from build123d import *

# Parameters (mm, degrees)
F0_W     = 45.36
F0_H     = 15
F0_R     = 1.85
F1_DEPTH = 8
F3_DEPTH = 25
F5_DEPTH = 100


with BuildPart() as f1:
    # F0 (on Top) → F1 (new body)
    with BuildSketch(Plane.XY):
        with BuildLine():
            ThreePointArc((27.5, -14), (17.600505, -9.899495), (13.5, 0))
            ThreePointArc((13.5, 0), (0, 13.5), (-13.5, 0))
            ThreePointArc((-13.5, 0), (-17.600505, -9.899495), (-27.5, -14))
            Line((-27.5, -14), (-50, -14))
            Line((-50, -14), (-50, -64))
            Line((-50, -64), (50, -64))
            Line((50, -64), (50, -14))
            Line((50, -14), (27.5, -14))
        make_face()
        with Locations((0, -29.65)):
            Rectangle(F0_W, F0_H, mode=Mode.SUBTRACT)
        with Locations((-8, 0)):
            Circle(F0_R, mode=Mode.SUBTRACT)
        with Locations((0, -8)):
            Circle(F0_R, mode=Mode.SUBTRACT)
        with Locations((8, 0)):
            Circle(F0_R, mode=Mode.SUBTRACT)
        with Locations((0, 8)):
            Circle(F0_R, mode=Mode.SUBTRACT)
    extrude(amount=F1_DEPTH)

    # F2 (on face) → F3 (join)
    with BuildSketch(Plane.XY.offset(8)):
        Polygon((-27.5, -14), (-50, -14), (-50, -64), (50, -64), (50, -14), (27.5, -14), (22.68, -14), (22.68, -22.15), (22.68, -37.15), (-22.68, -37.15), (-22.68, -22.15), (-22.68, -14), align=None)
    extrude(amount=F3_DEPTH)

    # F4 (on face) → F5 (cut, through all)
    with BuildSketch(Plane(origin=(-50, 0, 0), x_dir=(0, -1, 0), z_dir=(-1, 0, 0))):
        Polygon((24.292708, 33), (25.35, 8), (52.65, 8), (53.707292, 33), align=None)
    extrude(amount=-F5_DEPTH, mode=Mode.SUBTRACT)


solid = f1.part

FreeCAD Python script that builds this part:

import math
import FreeCAD as App
import Part
import Sketcher
from FreeCAD import Vector

doc = App.newDocument("Part")
params = doc.addObject("Spreadsheet::Sheet", "Params")
for row, (alias, value) in enumerate([
    ("sketch1_radius", "14 mm"),
    ("sketch1_diameter", "3.7 mm"),
    ("sketch1_radius2", "13.5 mm"),
    ("sketch1_width", "100 mm"),
    ("sketch1_height", "50 mm"),
    ("pad1_length", "8 mm"),
    ("sketch2_width", "100 mm"),
    ("sketch2_height", "50 mm"),
    ("sketch2_width2", "27.32 mm"),
    ("sketch2_height2", "23.15 mm"),
    ("pad2_length", "25 mm"),
    ("sketch3_width", "27.3 mm"),
], start=1):
    params.set(f"A{row}", alias)
    params.set(f"B{row}", "=" + value)
    params.setAlias(f"B{row}", alias)

body = doc.addObject("PartDesign::Body", "Body")

sketch1 = body.newObject("Sketcher::SketchObject", "Sketch")
sketch1.AttachmentSupport = (doc.getObject("XY_Plane"), [""])
sketch1.MapMode = "FlatFace"
sketch1.addGeometry(Part.ArcOfCircle(Part.Circle(Vector(27.5, 0, 0), Vector(0, 0, 1), 14), math.radians(180), math.radians(270)), False)
sketch1.addGeometry(Part.ArcOfCircle(Part.Circle(Vector(0, 0, 0), Vector(0, 0, 1), 13.5), math.radians(0), math.radians(180)), False)
sketch1.addGeometry(Part.ArcOfCircle(Part.Circle(Vector(-27.5, 0, 0), Vector(0, 0, 1), 14), math.radians(-90), math.radians(0)), False)
sketch1.addGeometry(Part.LineSegment(Vector(-27.5, -14, 0), Vector(-50, -14, 0)), False)
sketch1.addGeometry(Part.LineSegment(Vector(-50, -14, 0), Vector(-50, -64, 0)), False)
sketch1.addGeometry(Part.LineSegment(Vector(-50, -64, 0), Vector(50, -64, 0)), False)
sketch1.addGeometry(Part.LineSegment(Vector(50, -64, 0), Vector(50, -14, 0)), False)
sketch1.addGeometry(Part.LineSegment(Vector(50, -14, 0), Vector(27.5, -14, 0)), False)
sketch1.addGeometry(Part.LineSegment(Vector(22.7, -37.1, 0), Vector(-22.7, -37.1, 0)), False)
sketch1.addGeometry(Part.LineSegment(Vector(-22.7, -37.1, 0), Vector(-22.7, -22.1, 0)), False)
sketch1.addGeometry(Part.LineSegment(Vector(-22.7, -22.1, 0), Vector(22.7, -22.1, 0)), False)
sketch1.addGeometry(Part.LineSegment(Vector(22.7, -22.1, 0), Vector(22.7, -37.1, 0)), False)
sketch1.addGeometry(Part.Circle(Vector(0, -8, 0), Vector(0, 0, 1), 1.9), False)
sketch1.addGeometry(Part.Circle(Vector(-8, 0, 0), Vector(0, 0, 1), 1.9), False)
sketch1.addGeometry(Part.Circle(Vector(0, 8, 0), Vector(0, 0, 1), 1.9), False)
sketch1.addGeometry(Part.Circle(Vector(8, 0, 0), Vector(0, 0, 1), 1.9), False)
sketch1.addConstraint(Sketcher.Constraint("Tangent", 0, 1, 1, 1))
sketch1.addConstraint(Sketcher.Constraint("Tangent", 1, 2, 2, 2))
sketch1.addConstraint(Sketcher.Constraint("Tangent", 2, 1, 3, 1))
sketch1.addConstraint(Sketcher.Constraint("Coincident", 3, 2, 4, 1))
sketch1.addConstraint(Sketcher.Constraint("Coincident", 4, 2, 5, 1))
sketch1.addConstraint(Sketcher.Constraint("Coincident", 5, 2, 6, 1))
sketch1.addConstraint(Sketcher.Constraint("Coincident", 6, 2, 7, 1))
sketch1.addConstraint(Sketcher.Constraint("Tangent", 7, 2, 0, 2))
sketch1.addConstraint(Sketcher.Constraint("Coincident", 8, 2, 9, 1))
sketch1.addConstraint(Sketcher.Constraint("Coincident", 9, 2, 10, 1))
sketch1.addConstraint(Sketcher.Constraint("Coincident", 10, 2, 11, 1))
sketch1.addConstraint(Sketcher.Constraint("Coincident", 11, 2, 8, 1))
sketch1.addConstraint(Sketcher.Constraint("Horizontal", 3))
sketch1.addConstraint(Sketcher.Constraint("Vertical", 4))
sketch1.addConstraint(Sketcher.Constraint("Horizontal", 5))
sketch1.addConstraint(Sketcher.Constraint("Vertical", 6))
sketch1.addConstraint(Sketcher.Constraint("Horizontal", 7))
sketch1.addConstraint(Sketcher.Constraint("Horizontal", 8))
sketch1.addConstraint(Sketcher.Constraint("Vertical", 9))
sketch1.addConstraint(Sketcher.Constraint("Horizontal", 10))
sketch1.addConstraint(Sketcher.Constraint("Vertical", 11))
sketch1.addConstraint(Sketcher.Constraint("Coincident", 1, 3, -1, 1))
sketch1.addConstraint(Sketcher.Constraint("Equal", 0, 2))
sketch1.addConstraint(Sketcher.Constraint("Equal", 12, 13))
sketch1.addConstraint(Sketcher.Constraint("Equal", 13, 14))
sketch1.addConstraint(Sketcher.Constraint("Equal", 14, 15))
sketch1.addConstraint(Sketcher.Constraint("Symmetric", 12, 3, 14, 3, -1, 1))
sketch1.addConstraint(Sketcher.Constraint("Symmetric", 13, 3, 15, 3, -1, 1))
sketch1.addConstraint(Sketcher.Constraint("Symmetric", 3, 2, 6, 2, -2))
sketch1.addConstraint(Sketcher.Constraint("PointOnObject", 0, 3, -1))
sketch1.addConstraint(Sketcher.Constraint("PointOnObject", 12, 3, -2))
sketch1.addConstraint(Sketcher.Constraint("PointOnObject", 13, 3, -1))
sketch1.addConstraint(Sketcher.Constraint("Radius", 0, 14.0))
sketch1.addConstraint(Sketcher.Constraint("Diameter", 12, 3.7))
sketch1.addConstraint(Sketcher.Constraint("Radius", 1, 13.5))
sketch1.addConstraint(Sketcher.Constraint("DistanceX", 5, 1, 5, 2, 100.0))
sketch1.addConstraint(Sketcher.Constraint("DistanceY", 4, 2, 4, 1, 50.0))
sketch1.addConstraint(Sketcher.Constraint("DistanceY", 9, 1, 9, 2, 15.0))
sketch1.addConstraint(Sketcher.Constraint("DistanceY", 12, 3, -1, 1, 8.0))
sketch1.addConstraint(Sketcher.Constraint("DistanceX", 13, 3, -1, 1, 8.0))
sketch1.addConstraint(Sketcher.Constraint("DistanceX", 8, 2, 8, 1, 45.36))
sketch1.addConstraint(Sketcher.Constraint("DistanceX", 8, 2, -1, 1, 22.68))
sketch1.addConstraint(Sketcher.Constraint("DistanceY", 8, 2, -1, 1, 37.15))
sketch1.setExpression("Constraints[32]", "Params.sketch1_radius")
sketch1.setExpression("Constraints[33]", "Params.sketch1_diameter")
sketch1.setExpression("Constraints[34]", "Params.sketch1_radius2")
sketch1.setExpression("Constraints[35]", "Params.sketch1_width")
sketch1.setExpression("Constraints[36]", "Params.sketch1_height")
pad1 = body.newObject("PartDesign::Pad", "Pad")
pad1.Profile = sketch1
pad1.setExpression("Length", "Params.pad1_length")

sketch2 = body.newObject("Sketcher::SketchObject", "Sketch001")
sketch2.AttachmentSupport = (doc.getObject("XY_Plane"), [""])
sketch2.MapMode = "FlatFace"
sketch2.AttachmentOffset = App.Placement(Vector(0, 0, 8), App.Rotation())
sketch2.addGeometry(Part.LineSegment(Vector(-50, -14, 0), Vector(-50, -64, 0)), False)
sketch2.addGeometry(Part.LineSegment(Vector(-50, -64, 0), Vector(50, -64, 0)), False)
sketch2.addGeometry(Part.LineSegment(Vector(50, -64, 0), Vector(50, -14, 0)), False)
sketch2.addGeometry(Part.LineSegment(Vector(50, -14, 0), Vector(23, -14, 0)), False)
sketch2.addGeometry(Part.LineSegment(Vector(23, -14, 0), Vector(23, -37, 0)), False)
sketch2.addGeometry(Part.LineSegment(Vector(23, -37, 0), Vector(-23, -37, 0)), False)
sketch2.addGeometry(Part.LineSegment(Vector(-23, -37, 0), Vector(-23, -14, 0)), False)
sketch2.addGeometry(Part.LineSegment(Vector(-23, -14, 0), Vector(-50, -14, 0)), False)
sketch2.addConstraint(Sketcher.Constraint("Coincident", 0, 2, 1, 1))
sketch2.addConstraint(Sketcher.Constraint("Coincident", 1, 2, 2, 1))
sketch2.addConstraint(Sketcher.Constraint("Coincident", 2, 2, 3, 1))
sketch2.addConstraint(Sketcher.Constraint("Coincident", 3, 2, 4, 1))
sketch2.addConstraint(Sketcher.Constraint("Coincident", 4, 2, 5, 1))
sketch2.addConstraint(Sketcher.Constraint("Coincident", 5, 2, 6, 1))
sketch2.addConstraint(Sketcher.Constraint("Coincident", 6, 2, 7, 1))
sketch2.addConstraint(Sketcher.Constraint("Coincident", 7, 2, 0, 1))
sketch2.addConstraint(Sketcher.Constraint("Vertical", 0))
sketch2.addConstraint(Sketcher.Constraint("Horizontal", 1))
sketch2.addConstraint(Sketcher.Constraint("Vertical", 2))
sketch2.addConstraint(Sketcher.Constraint("Horizontal", 3))
sketch2.addConstraint(Sketcher.Constraint("Vertical", 4))
sketch2.addConstraint(Sketcher.Constraint("Horizontal", 5))
sketch2.addConstraint(Sketcher.Constraint("Vertical", 6))
sketch2.addConstraint(Sketcher.Constraint("Horizontal", 7))
sketch2.addConstraint(Sketcher.Constraint("Symmetric", 3, 2, 6, 2, -2))
sketch2.addConstraint(Sketcher.Constraint("Equal", 3, 7))
sketch2.addConstraint(Sketcher.Constraint("DistanceX", 1, 1, 1, 2, 100.0))
sketch2.addConstraint(Sketcher.Constraint("DistanceY", 0, 2, 0, 1, 50.0))
sketch2.addConstraint(Sketcher.Constraint("DistanceY", 0, 2, -1, 1, 64.0))
sketch2.addConstraint(Sketcher.Constraint("DistanceX", 3, 2, 3, 1, 27.32))
sketch2.addConstraint(Sketcher.Constraint("DistanceY", 4, 2, 4, 1, 23.15))
sketch2.setExpression("Constraints[18]", "Params.sketch2_width")
sketch2.setExpression("Constraints[19]", "Params.sketch2_height")
sketch2.setExpression("Constraints[21]", "Params.sketch2_width2")
sketch2.setExpression("Constraints[22]", "Params.sketch2_height2")
pad2 = body.newObject("PartDesign::Pad", "Pad001")
pad2.Profile = sketch2
pad2.setExpression("Length", "Params.pad2_length")

sketch3 = body.newObject("Sketcher::SketchObject", "Sketch002")
sketch3.AttachmentSupport = (doc.getObject("YZ_Plane"), [""])
sketch3.MapMode = "FlatFace"
sketch3.AttachmentOffset = App.Placement(Vector(0, 0, -50), App.Rotation())
sketch3.addGeometry(Part.LineSegment(Vector(-24, 33, 0), Vector(-25, 8, 0)), False)
sketch3.addGeometry(Part.LineSegment(Vector(-25, 8, 0), Vector(-53, 8, 0)), False)
sketch3.addGeometry(Part.LineSegment(Vector(-53, 8, 0), Vector(-54, 33, 0)), False)
sketch3.addGeometry(Part.LineSegment(Vector(-54, 33, 0), Vector(-24, 33, 0)), False)
sketch3.addConstraint(Sketcher.Constraint("Coincident", 0, 2, 1, 1))
sketch3.addConstraint(Sketcher.Constraint("Coincident", 1, 2, 2, 1))
sketch3.addConstraint(Sketcher.Constraint("Coincident", 2, 2, 3, 1))
sketch3.addConstraint(Sketcher.Constraint("Coincident", 3, 2, 0, 1))
sketch3.addConstraint(Sketcher.Constraint("Horizontal", 1))
sketch3.addConstraint(Sketcher.Constraint("Horizontal", 3))
sketch3.addConstraint(Sketcher.Constraint("Equal", 0, 2))
sketch3.addConstraint(Sketcher.Constraint("DistanceX", 1, 2, 1, 1, 27.3))
sketch3.addConstraint(Sketcher.Constraint("DistanceY", -1, 1, 0, 2, 8.0))
sketch3.addConstraint(Sketcher.Constraint("DistanceY", -1, 1, 2, 2, 33.0))
sketch3.addConstraint(Sketcher.Constraint("DistanceX", 0, 2, -1, 1, 25.35))
sketch3.addConstraint(Sketcher.Constraint("DistanceX", 3, 1, 3, 2, 29.414584))
sketch3.setExpression("Constraints[7]", "Params.sketch3_width")
pocket1 = body.newObject("PartDesign::Pocket", "Pocket")
pocket1.Profile = sketch3
pocket1.Type = "ThroughAll"
pocket1.Reversed = True

doc.recompute()
